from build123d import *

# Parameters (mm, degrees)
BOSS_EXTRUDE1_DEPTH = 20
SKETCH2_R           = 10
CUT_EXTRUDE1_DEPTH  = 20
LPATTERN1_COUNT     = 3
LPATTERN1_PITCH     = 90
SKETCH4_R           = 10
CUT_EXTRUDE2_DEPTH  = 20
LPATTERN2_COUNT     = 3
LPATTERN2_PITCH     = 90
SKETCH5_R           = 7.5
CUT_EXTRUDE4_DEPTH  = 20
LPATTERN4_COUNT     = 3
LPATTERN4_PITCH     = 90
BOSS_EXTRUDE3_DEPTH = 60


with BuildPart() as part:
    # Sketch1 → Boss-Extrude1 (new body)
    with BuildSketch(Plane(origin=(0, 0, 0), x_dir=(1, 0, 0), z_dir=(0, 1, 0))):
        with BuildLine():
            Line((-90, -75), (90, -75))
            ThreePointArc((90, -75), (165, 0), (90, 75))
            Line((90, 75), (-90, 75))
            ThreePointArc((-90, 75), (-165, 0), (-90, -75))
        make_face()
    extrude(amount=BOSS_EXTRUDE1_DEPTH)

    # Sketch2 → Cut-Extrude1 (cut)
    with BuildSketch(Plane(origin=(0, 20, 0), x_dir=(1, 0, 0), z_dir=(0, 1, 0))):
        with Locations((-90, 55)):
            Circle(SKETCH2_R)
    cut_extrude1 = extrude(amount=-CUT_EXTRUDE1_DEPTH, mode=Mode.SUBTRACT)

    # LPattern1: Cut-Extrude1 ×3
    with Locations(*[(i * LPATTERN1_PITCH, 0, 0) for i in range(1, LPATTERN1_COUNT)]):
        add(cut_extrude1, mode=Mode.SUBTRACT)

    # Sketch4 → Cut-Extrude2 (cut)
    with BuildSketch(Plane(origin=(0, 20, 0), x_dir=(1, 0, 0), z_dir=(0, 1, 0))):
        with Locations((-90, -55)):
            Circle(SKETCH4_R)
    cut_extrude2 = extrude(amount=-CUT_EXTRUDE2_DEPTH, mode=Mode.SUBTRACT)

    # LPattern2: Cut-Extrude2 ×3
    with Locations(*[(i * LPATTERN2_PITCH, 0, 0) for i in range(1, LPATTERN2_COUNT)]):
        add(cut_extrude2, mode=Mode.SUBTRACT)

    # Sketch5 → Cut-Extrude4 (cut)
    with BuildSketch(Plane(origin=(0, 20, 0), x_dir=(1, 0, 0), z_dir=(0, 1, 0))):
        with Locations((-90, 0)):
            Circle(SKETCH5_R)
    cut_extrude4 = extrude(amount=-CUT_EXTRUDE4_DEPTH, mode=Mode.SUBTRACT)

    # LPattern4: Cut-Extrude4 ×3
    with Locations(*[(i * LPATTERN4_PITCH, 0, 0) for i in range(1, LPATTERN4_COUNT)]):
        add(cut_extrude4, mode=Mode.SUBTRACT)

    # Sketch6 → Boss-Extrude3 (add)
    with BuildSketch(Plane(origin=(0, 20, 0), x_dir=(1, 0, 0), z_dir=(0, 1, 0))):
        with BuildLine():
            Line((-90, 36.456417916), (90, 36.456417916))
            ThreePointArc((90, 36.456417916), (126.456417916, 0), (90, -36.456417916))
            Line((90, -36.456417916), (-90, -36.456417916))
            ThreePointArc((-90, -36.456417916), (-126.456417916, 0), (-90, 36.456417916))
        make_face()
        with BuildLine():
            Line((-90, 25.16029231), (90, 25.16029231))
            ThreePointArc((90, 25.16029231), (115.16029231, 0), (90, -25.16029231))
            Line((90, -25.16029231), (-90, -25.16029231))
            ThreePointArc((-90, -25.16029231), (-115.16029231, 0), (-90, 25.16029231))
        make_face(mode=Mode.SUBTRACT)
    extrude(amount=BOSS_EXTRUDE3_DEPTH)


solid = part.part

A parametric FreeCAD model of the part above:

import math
import FreeCAD as App
import Part
import Sketcher

V = App.Vector
Q = App.Units.Quantity

doc = App.newDocument("Part")
body = doc.addObject("PartDesign::Body", "Body")

# Sketch on XZ plane
sketch1 = doc.addObject("Sketcher::SketchObject", "Sketch")
body.addObject(sketch1)
sketch1.AttachmentSupport = (doc.XZ_Plane, [""])
sketch1.MapMode = "FlatFace"
sketch1.addGeometry(Part.LineSegment(V(-90, 75, 0), V(90, 75, 0)), False)
sketch1.addGeometry(Part.ArcOfCircle(Part.Circle(V(90, 0, 0), V(0, 0, 1), 75), math.radians(-90), math.radians(90)), False)
sketch1.addGeometry(Part.LineSegment(V(90, -75, 0), V(-90, -75, 0)), False)
sketch1.addGeometry(Part.ArcOfCircle(Part.Circle(V(-90, 0, 0), V(0, 0, 1), 75), math.radians(90), math.radians(270)), False)
sketch1.addConstraint(Sketcher.Constraint("Tangent", 0, 2, 1, 2))
sketch1.addConstraint(Sketcher.Constraint("Tangent", 1, 1, 2, 1))
sketch1.addConstraint(Sketcher.Constraint("Tangent", 2, 2, 3, 2))
sketch1.addConstraint(Sketcher.Constraint("Tangent", 3, 1, 0, 1))
sketch1.addConstraint(Sketcher.Constraint("Horizontal", 0))
sketch1.addConstraint(Sketcher.Constraint("Horizontal", 2))
sketch1.addConstraint(Sketcher.Constraint("Symmetric", 1, 3, 3, 3, -1, 1))
sketch1.addConstraint(Sketcher.Constraint("Radius", 1, Q("75 mm")))
sketch1.addConstraint(Sketcher.Constraint("DistanceX", 0, 1, 0, 2, Q("180 mm")))
pad1 = doc.addObject("PartDesign::Pad", "Pad")
body.addObject(pad1)
pad1.Profile = sketch1
pad1.Length = 20
pad1.Reversed = True

# Sketch on XZ plane
sketch2 = doc.addObject("Sketcher::SketchObject", "Sketch001")
body.addObject(sketch2)
sketch2.AttachmentSupport = (doc.XZ_Plane, [""])
sketch2.MapMode = "FlatFace"
sketch2.AttachmentOffset = App.Placement(V(0, 0, -20), App.Rotation())
sketch2.addGeometry(Part.Circle(V(-90, -55, 0), V(0, 0, 1), 10), False)
sketch2.addConstraint(Sketcher.Constraint("Diameter", 0, Q("20 mm")))
sketch2.addConstraint(Sketcher.Constraint("DistanceX", 0, 3, -1, 1, Q("90 mm")))
sketch2.addConstraint(Sketcher.Constraint("DistanceY", 0, 3, -1, 1, Q("55 mm")))
pocket1 = doc.addObject("PartDesign::Pocket", "Pocket")
body.addObject(pocket1)
pocket1.Profile = sketch2
pocket1.Length = 20
pocket1.Reversed = True
doc.recompute()

linearpattern = doc.addObject("PartDesign::LinearPattern", "LinearPattern")
body.addObject(linearpattern)
linearpattern.Originals = [pocket1]
linearpattern.Direction = (doc.X_Axis, [""])
linearpattern.Mode = "offset"
linearpattern.Offset = 90
linearpattern.Occurrences = 3
body.Tip = linearpattern

# Sketch on XZ plane
sketch3 = doc.addObject("Sketcher::SketchObject", "Sketch002")
body.addObject(sketch3)
sketch3.AttachmentSupport = (doc.XZ_Plane, [""])
sketch3.MapMode = "FlatFace"
sketch3.AttachmentOffset = App.Placement(V(0, 0, -20), App.Rotation())
sketch3.addGeometry(Part.Circle(V(-90, 55, 0), V(0, 0, 1), 10), False)
sketch3.addConstraint(Sketcher.Constraint("Diameter", 0, Q("20 mm")))
sketch3.addConstraint(Sketcher.Constraint("DistanceX", 0, 3, -1, 1, Q("90 mm")))
sketch3.addConstraint(Sketcher.Constraint("DistanceY", -1, 1, 0, 3, Q("55 mm")))
pocket2 = doc.addObject("PartDesign::Pocket", "Pocket001")
body.addObject(pocket2)
pocket2.Profile = sketch3
pocket2.Length = 20
pocket2.Reversed = True
doc.recompute()

linearpattern2 = doc.addObject("PartDesign::LinearPattern", "LinearPattern001")
body.addObject(linearpattern2)
linearpattern2.Originals = [pocket2]
linearpattern2.Direction = (doc.X_Axis, [""])
linearpattern2.Mode = "offset"
linearpattern2.Offset = 90
linearpattern2.Occurrences = 3
body.Tip = linearpattern2

# Sketch on XZ plane
sketch4 = doc.addObject("Sketcher::SketchObject", "Sketch003")
body.addObject(sketch4)
sketch4.AttachmentSupport = (doc.XZ_Plane, [""])
sketch4.MapMode = "FlatFace"
sketch4.AttachmentOffset = App.Placement(V(0, 0, -20), App.Rotation())
sketch4.addGeometry(Part.Circle(V(-90, 0, 0), V(0, 0, 1), 8), False)
sketch4.addConstraint(Sketcher.Constraint("PointOnObject", 0, 3, -1))
sketch4.addConstraint(Sketcher.Constraint("Diameter", 0, Q("15 mm")))
sketch4.addConstraint(Sketcher.Constraint("DistanceX", 0, 3, -1, 1, Q("90 mm")))
pocket3 = doc.addObject("PartDesign::Pocket", "Pocket002")
body.addObject(pocket3)
pocket3.Profile = sketch4
pocket3.Length = 20
pocket3.Reversed = True
doc.recompute()

linearpattern3 = doc.addObject("PartDesign::LinearPattern", "LinearPattern002")
body.addObject(linearpattern3)
linearpattern3.Originals = [pocket3]
linearpattern3.Direction = (doc.X_Axis, [""])
linearpattern3.Mode = "offset"
linearpattern3.Offset = 90
linearpattern3.Occurrences = 3
body.Tip = linearpattern3

# Sketch on XZ plane
sketch5 = doc.addObject("Sketcher::SketchObject", "Sketch004")
body.addObject(sketch5)
sketch5.AttachmentSupport = (doc.XZ_Plane, [""])
sketch5.MapMode = "FlatFace"
sketch5.AttachmentOffset = App.Placement(V(0, 0, -20), App.Rotation())
sketch5.addGeometry(Part.LineSegment(V(90, -36, 0), V(-90, -36, 0)), False)
sketch5.addGeometry(Part.ArcOfCircle(Part.Circle(V(-90, 0, 0), V(0, 0, 1), 36), math.radians(90), math.radians(270)), False)
sketch5.addGeometry(Part.LineSegment(V(-90, 36, 0), V(90, 36, 0)), False)
sketch5.addGeometry(Part.ArcOfCircle(Part.Circle(V(90, 0, 0), V(0, 0, 1), 36), math.radians(-90), math.radians(90)), False)
sketch5.addGeometry(Part.LineSegment(V(-90, -25, 0), V(90, -25, 0)), False)
sketch5.addGeometry(Part.ArcOfCircle(Part.Circle(V(90, 0, 0), V(0, 0, 1), 25), math.radians(-90), math.radians(90)), False)
sketch5.addGeometry(Part.LineSegment(V(90, 25, 0), V(-90, 25, 0)), False)
sketch5.addGeometry(Part.ArcOfCircle(Part.Circle(V(-90, 0, 0), V(0, 0, 1), 25), math.radians(90), math.radians(270)), False)
sketch5.addConstraint(Sketcher.Constraint("Tangent", 0, 2, 1, 2))
sketch5.addConstraint(Sketcher.Constraint("Tangent", 1, 1, 2, 1))
sketch5.addConstraint(Sketcher.Constraint("Tangent", 2, 2, 3, 2))
sketch5.addConstraint(Sketcher.Constraint("Tangent", 3, 1, 0, 1))
sketch5.addConstraint(Sketcher.Constraint("Tangent", 4, 2, 5, 1))
sketch5.addConstraint(Sketcher.Constraint("Tangent", 5, 2, 6, 1))
sketch5.addConstraint(Sketcher.Constraint("Tangent", 6, 2, 7, 1))
sketch5.addConstraint(Sketcher.Constraint("Tangent", 7, 2, 4, 1))
sketch5.addConstraint(Sketcher.Constraint("Horizontal", 0))
sketch5.addConstraint(Sketcher.Constraint("Horizontal", 2))
sketch5.addConstraint(Sketcher.Constraint("Horizontal", 4))
sketch5.addConstraint(Sketcher.Constraint("Horizontal", 6))
sketch5.addConstraint(Sketcher.Constraint("Coincident", 5, 3, 3, 3))
sketch5.addConstraint(Sketcher.Constraint("Symmetric", 1, 3, 3, 3, -1, 1))
sketch5.addConstraint(Sketcher.Constraint("Vertical", 7, 3, 0, 2))
sketch5.addConstraint(Sketcher.Constraint("DistanceX", 0, 2, 0, 1, Q("180 mm")))
sketch5.addConstraint(Sketcher.Constraint("Radius", 1, Q("36.456418 mm")))
sketch5.addConstraint(Sketcher.Constraint("Radius", 5, Q("25.160292 mm")))
pad2 = doc.addObject("PartDesign::Pad", "Pad001")
body.addObject(pad2)
pad2.Profile = sketch5
pad2.Length = 60
pad2.Reversed = True

doc.recompute()
